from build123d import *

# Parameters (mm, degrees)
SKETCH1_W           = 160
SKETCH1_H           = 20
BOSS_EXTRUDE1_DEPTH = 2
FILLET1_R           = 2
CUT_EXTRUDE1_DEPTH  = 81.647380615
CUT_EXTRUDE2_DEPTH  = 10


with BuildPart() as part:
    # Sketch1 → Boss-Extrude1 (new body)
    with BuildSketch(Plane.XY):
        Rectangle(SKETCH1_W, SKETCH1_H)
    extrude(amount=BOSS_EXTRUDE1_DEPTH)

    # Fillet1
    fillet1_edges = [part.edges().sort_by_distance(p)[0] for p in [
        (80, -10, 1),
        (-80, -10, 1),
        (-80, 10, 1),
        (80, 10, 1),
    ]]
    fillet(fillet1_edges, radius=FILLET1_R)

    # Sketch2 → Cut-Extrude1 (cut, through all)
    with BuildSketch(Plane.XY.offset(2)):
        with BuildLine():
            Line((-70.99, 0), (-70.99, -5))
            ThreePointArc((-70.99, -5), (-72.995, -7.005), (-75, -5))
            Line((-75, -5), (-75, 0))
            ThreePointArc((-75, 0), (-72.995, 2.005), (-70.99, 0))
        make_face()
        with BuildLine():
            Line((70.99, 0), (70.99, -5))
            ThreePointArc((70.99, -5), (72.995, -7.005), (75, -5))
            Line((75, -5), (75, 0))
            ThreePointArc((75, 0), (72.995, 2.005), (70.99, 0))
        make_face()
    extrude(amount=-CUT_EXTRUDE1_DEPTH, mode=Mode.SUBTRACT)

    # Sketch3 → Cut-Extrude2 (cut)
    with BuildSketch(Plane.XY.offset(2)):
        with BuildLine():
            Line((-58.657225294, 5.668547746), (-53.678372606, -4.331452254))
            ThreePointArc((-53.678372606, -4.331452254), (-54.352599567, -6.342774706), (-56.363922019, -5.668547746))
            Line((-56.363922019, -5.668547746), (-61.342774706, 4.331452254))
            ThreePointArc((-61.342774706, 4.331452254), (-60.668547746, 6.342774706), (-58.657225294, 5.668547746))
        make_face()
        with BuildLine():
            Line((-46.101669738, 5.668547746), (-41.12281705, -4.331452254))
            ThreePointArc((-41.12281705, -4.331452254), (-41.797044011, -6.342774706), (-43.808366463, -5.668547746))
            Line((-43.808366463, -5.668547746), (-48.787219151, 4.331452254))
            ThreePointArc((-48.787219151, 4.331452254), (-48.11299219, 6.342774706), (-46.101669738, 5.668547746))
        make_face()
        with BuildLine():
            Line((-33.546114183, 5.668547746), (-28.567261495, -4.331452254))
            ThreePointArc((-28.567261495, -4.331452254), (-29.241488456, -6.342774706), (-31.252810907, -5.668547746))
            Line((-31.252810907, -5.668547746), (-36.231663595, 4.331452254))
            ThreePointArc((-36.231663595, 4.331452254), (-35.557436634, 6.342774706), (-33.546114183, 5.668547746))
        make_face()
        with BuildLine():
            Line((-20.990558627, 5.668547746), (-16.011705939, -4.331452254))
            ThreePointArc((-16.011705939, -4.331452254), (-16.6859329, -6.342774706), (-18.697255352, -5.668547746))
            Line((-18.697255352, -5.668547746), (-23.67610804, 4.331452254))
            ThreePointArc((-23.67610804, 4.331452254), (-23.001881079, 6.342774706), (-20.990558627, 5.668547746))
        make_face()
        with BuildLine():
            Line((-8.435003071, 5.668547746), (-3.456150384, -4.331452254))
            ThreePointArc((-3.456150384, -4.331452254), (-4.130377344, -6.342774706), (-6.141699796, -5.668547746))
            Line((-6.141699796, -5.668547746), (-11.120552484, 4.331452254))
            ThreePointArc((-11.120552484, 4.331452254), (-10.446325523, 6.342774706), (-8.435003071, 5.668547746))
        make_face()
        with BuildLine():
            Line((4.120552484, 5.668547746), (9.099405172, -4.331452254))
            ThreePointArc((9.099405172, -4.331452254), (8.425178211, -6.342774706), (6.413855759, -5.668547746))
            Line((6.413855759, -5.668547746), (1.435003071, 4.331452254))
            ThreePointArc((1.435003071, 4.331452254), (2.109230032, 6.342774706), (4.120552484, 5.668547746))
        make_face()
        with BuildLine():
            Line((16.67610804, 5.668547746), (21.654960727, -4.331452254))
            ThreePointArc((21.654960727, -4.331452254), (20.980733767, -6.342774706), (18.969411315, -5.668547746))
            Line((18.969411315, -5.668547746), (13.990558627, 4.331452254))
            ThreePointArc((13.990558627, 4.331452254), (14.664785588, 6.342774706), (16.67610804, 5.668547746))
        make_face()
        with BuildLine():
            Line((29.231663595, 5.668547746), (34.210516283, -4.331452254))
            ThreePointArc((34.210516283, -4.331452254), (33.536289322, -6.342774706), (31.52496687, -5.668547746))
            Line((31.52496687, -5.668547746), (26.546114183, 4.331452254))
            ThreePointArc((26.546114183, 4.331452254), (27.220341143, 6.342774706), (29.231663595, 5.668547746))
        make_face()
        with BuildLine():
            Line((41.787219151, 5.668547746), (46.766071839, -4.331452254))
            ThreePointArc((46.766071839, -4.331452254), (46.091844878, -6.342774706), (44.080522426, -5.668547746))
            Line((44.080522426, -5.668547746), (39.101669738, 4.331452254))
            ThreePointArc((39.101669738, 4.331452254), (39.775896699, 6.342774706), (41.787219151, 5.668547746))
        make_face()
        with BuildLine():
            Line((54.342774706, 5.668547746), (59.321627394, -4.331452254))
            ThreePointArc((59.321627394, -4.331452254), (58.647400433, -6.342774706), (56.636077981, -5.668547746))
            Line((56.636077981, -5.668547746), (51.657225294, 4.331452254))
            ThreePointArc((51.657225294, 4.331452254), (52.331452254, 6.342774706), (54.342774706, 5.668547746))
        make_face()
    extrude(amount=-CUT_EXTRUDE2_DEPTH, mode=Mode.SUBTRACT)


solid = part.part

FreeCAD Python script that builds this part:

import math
import FreeCAD as App
import Part
import Sketcher
from FreeCAD import Vector


def edges_at(feature, points):
    """Names of the edges that pass closest to the given points."""
    edges = feature.Shape.Edges
    near = lambda p: min(range(len(edges)), key=lambda i: edges[i].distToShape(Part.Vertex(*p))[0])
    return sorted({f"Edge{near(p) + 1}" for p in points})


def add_polygon(sketch, points):
    """Adds a closed chain of lines whose ends are joined by coincident constraints."""
    first, n = sketch.GeometryCount, len(points)
    for a, b in zip(points, points[1:] + points[:1]):
        sketch.addGeometry(Part.LineSegment(App.Vector(*a, 0), App.Vector(*b, 0)), False)
    for i in range(n):
        sketch.addConstraint(Sketcher.Constraint("Coincident", first + i, 2, first + (i + 1) % n, 1))

doc = App.newDocument("Part")
params = doc.addObject("Spreadsheet::Sheet", "Params")
for row, (alias, value) in enumerate([
    ("sketch1_width", "160 mm"),
    ("sketch1_height", "20 mm"),
    ("pad1_length", "2 mm"),
    ("fillet_radius", "2 mm"),
    ("sketch2_height", "5 mm"),
    ("sketch3_radius", "1.5 mm"),
    ("pocket2_length", "10 mm"),
], start=1):
    params.set(f"A{row}", alias)
    params.set(f"B{row}", "=" + value)
    params.setAlias(f"B{row}", alias)

body = doc.addObject("PartDesign::Body", "Body")

# Sketch on XY plane
sketch1 = body.newObject("Sketcher::SketchObject", "Sketch")
sketch1.AttachmentSupport = (doc.getObject("XY_Plane"), [""])
sketch1.MapMode = "FlatFace"
add_polygon(sketch1, [(-80, 10), (-80, -10), (80, -10), (80, 10)])  # lines 0-3
sketch1.addConstraint(Sketcher.Constraint("Vertical", 0))
sketch1.addConstraint(Sketcher.Constraint("Horizontal", 1))
sketch1.addConstraint(Sketcher.Constraint("Vertical", 2))
sketch1.addConstraint(Sketcher.Constraint("Horizontal", 3))
sketch1.addConstraint(Sketcher.Constraint("Symmetric", 0, 2, 2, 2, -1, 1))
sketch1.addConstraint(Sketcher.Constraint("DistanceX", 1, 1, 1, 2, 160.0))
sketch1.addConstraint(Sketcher.Constraint("DistanceY", 0, 2, 0, 1, 20.0))
sketch1.setExpression("Constraints[9]", "Params.sketch1_width")
sketch1.setExpression("Constraints[10]", "Params.sketch1_height")
pad1 = body.newObject("PartDesign::Pad", "Pad")
pad1.Profile = sketch1
pad1.setExpression("Length", "Params.pad1_length")
doc.recompute()

fillet = body.newObject("PartDesign::Fillet", "Fillet")
fillet.Base = (pad1, edges_at(pad1, [
    (80, -10, 1),
    (-80, -10, 1),
    (-80, 10, 1),
    (80, 10, 1),
]))
fillet.setExpression("Radius", "Params.fillet_radius")

# Sketch on XY plane
sketch2 = body.newObject("Sketcher::SketchObject", "Sketch001")
sketch2.AttachmentSupport = (doc.getObject("XY_Plane"), [""])
sketch2.MapMode = "FlatFace"
sketch2.AttachmentOffset = App.Placement(Vector(0, 0, 2), App.Rotation())
sketch2.addGeometry(Part.LineSegment(Vector(-71, -5, 0), Vector(-71, 0, 0)), False)
sketch2.addGeometry(Part.ArcOfCircle(Part.Circle(Vector(-73, 0, 0), Vector(0, 0, 1), 2), math.radians(0), math.radians(180)), False)
sketch2.addGeometry(Part.LineSegment(Vector(-75, 0, 0), Vector(-75, -5, 0)), False)
sketch2.addGeometry(Part.ArcOfCircle(Part.Circle(Vector(-73, -5, 0), Vector(0, 0, 1), 2), math.radians(180), math.radians(360)), False)
sketch2.addGeometry(Part.LineSegment(Vector(71, 0, 0), Vector(71, -5, 0)), False)
sketch2.addGeometry(Part.ArcOfCircle(Part.Circle(Vector(73, -5, 0), Vector(0, 0, 1), 2), math.radians(180), math.radians(360)), False)
sketch2.addGeometry(Part.LineSegment(Vector(75, -5, 0), Vector(75, 0, 0)), False)
sketch2.addGeometry(Part.ArcOfCircle(Part.Circle(Vector(73, 0, 0), Vector(0, 0, 1), 2), math.radians(0), math.radians(180)), False)
sketch2.addConstraint(Sketcher.Constraint("Tangent", 0, 2, 1, 1))
sketch2.addConstraint(Sketcher.Constraint("Tangent", 1, 2, 2, 1))
sketch2.addConstraint(Sketcher.Constraint("Tangent", 2, 2, 3, 1))
sketch2.addConstraint(Sketcher.Constraint("Tangent", 3, 2, 0, 1))
sketch2.addConstraint(Sketcher.Constraint("Tangent", 4, 2, 5, 1))
sketch2.addConstraint(Sketcher.Constraint("Tangent", 5, 2, 6, 1))
sketch2.addConstraint(Sketcher.Constraint("Tangent", 6, 2, 7, 1))
sketch2.addConstraint(Sketcher.Constraint("Tangent", 7, 2, 4, 1))
sketch2.addConstraint(Sketcher.Constraint("Vertical", 0))
sketch2.addConstraint(Sketcher.Constraint("Vertical", 2))
sketch2.addConstraint(Sketcher.Constraint("Vertical", 4))
sketch2.addConstraint(Sketcher.Constraint("Vertical", 6))
sketch2.addConstraint(Sketcher.Constraint("Equal", 3, 5))
sketch2.addConstraint(Sketcher.Constraint("Symmetric", 1, 3, 7, 3, -1, 1))
sketch2.addConstraint(Sketcher.Constraint("PointOnObject", 1, 3, -1))
sketch2.addConstraint(Sketcher.Constraint("Horizontal", 3, 3, 5, 3))
sketch2.addConstraint(Sketcher.Constraint("DistanceY", 0, 1, 0, 2, 5.0))
sketch2.addConstraint(Sketcher.Constraint("DistanceX", 1, 2, -1, 1, 75.0))
sketch2.addConstraint(Sketcher.Constraint("Radius", 1, 2.005))
sketch2.setExpression("Constraints[16]", "Params.sketch2_height")
pocket1 = body.newObject("PartDesign::Pocket", "Pocket")
pocket1.Profile = sketch2
pocket1.Type = "ThroughAll"

# Sketch on XY plane
sketch3 = body.newObject("Sketcher::SketchObject", "Sketch002")
sketch3.AttachmentSupport = (doc.getObject("XY_Plane"), [""])
sketch3.MapMode = "FlatFace"
sketch3.AttachmentOffset = App.Placement(Vector(0, 0, 2), App.Rotation())
sketch3.addGeometry(Part.LineSegment(Vector(-53.7, -4.3, 0), Vector(-58.7, 5.7, 0)), False)
sketch3.addGeometry(Part.ArcOfCircle(Part.Circle(Vector(-60, 5, 0), Vector(0, 0, 1), 1.5), math.radians(26), math.radians(206)), False)
sketch3.addGeometry(Part.LineSegment(Vector(-61.3, 4.3, 0), Vector(-56.4, -5.7, 0)), False)
sketch3.addGeometry(Part.ArcOfCircle(Part.Circle(Vector(-55, -5, 0), Vector(0, 0, 1), 1.5), math.radians(-154), math.radians(26)), False)
sketch3.addGeometry(Part.LineSegment(Vector(-41.1, -4.3, 0), Vector(-46.1, 5.7, 0)), False)
sketch3.addGeometry(Part.ArcOfCircle(Part.Circle(Vector(-47.4, 5, 0), Vector(0, 0, 1), 1.5), math.radians(26), math.radians(206)), False)
sketch3.addGeometry(Part.LineSegment(Vector(-48.8, 4.3, 0), Vector(-43.8, -5.7, 0)), False)
sketch3.addGeometry(Part.ArcOfCircle(Part.Circle(Vector(-42.5, -5, 0), Vector(0, 0, 1), 1.5), math.radians(-154), math.radians(26)), False)
sketch3.addGeometry(Part.LineSegment(Vector(-28.6, -4.3, 0), Vector(-33.5, 5.7, 0)), False)
sketch3.addGeometry(Part.ArcOfCircle(Part.Circle(Vector(-34.9, 5, 0), Vector(0, 0, 1), 1.5), math.radians(26), math.radians(206)), False)
sketch3.addGeometry(Part.LineSegment(Vector(-36.2, 4.3, 0), Vector(-31.3, -5.7, 0)), False)
sketch3.addGeometry(Part.ArcOfCircle(Part.Circle(Vector(-29.9, -5, 0), Vector(0, 0, 1), 1.5), math.radians(-154), math.radians(26)), False)
sketch3.addGeometry(Part.LineSegment(Vector(-16, -4.3, 0), Vector(-21, 5.7, 0)), False)
sketch3.addGeometry(Part.ArcOfCircle(Part.Circle(Vector(-22.3, 5, 0), Vector(0, 0, 1), 1.5), math.radians(26), math.radians(206)), False)
sketch3.addGeometry(Part.LineSegment(Vector(-23.7, 4.3, 0), Vector(-18.7, -5.7, 0)), False)
sketch3.addGeometry(Part.ArcOfCircle(Part.Circle(Vector(-17.4, -5, 0), Vector(0, 0, 1), 1.5), math.radians(-154), math.radians(26)), False)
sketch3.addGeometry(Part.LineSegment(Vector(-3.5, -4.3, 0), Vector(-8.4, 5.7, 0)), False)
sketch3.addGeometry(Part.ArcOfCircle(Part.Circle(Vector(-9.8, 5, 0), Vector(0, 0, 1), 1.5), math.radians(26), math.radians(206)), False)
sketch3.addGeometry(Part.LineSegment(Vector(-11.1, 4.3, 0), Vector(-6.1, -5.7, 0)), False)
sketch3.addGeometry(Part.ArcOfCircle(Part.Circle(Vector(-4.8, -5, 0), Vector(0, 0, 1), 1.5), math.radians(-154), math.radians(26)), False)
sketch3.addGeometry(Part.LineSegment(Vector(9.1, -4.3, 0), Vector(4.1, 5.7, 0)), False)
sketch3.addGeometry(Part.ArcOfCircle(Part.Circle(Vector(2.8, 5, 0), Vector(0, 0, 1), 1.5), math.radians(26), math.radians(206)), False)
sketch3.addGeometry(Part.LineSegment(Vector(1.4, 4.3, 0), Vector(6.4, -5.7, 0)), False)
sketch3.addGeometry(Part.ArcOfCircle(Part.Circle(Vector(7.8, -5, 0), Vector(0, 0, 1), 1.5), math.radians(-154), math.radians(26)), False)
sketch3.addGeometry(Part.LineSegment(Vector(21.7, -4.3, 0), Vector(16.7, 5.7, 0)), False)
sketch3.addGeometry(Part.ArcOfCircle(Part.Circle(Vector(15.3, 5, 0), Vector(0, 0, 1), 1.5), math.radians(26), math.radians(206)), False)
sketch3.addGeometry(Part.LineSegment(Vector(14, 4.3, 0), Vector(19, -5.7, 0)), False)
sketch3.addGeometry(Part.ArcOfCircle(Part.Circle(Vector(20.3, -5, 0), Vector(0, 0, 1), 1.5), math.radians(-154), math.radians(26)), False)
sketch3.addGeometry(Part.LineSegment(Vector(34.2, -4.3, 0), Vector(29.2, 5.7, 0)), False)
sketch3.addGeometry(Part.ArcOfCircle(Part.Circle(Vector(27.9, 5, 0), Vector(0, 0, 1), 1.5), math.radians(26), math.radians(206)), False)
sketch3.addGeometry(Part.LineSegment(Vector(26.5, 4.3, 0), Vector(31.5, -5.7, 0)), False)
sketch3.addGeometry(Part.ArcOfCircle(Part.Circle(Vector(32.9, -5, 0), Vector(0, 0, 1), 1.5), math.radians(-154), math.radians(26)), False)
sketch3.addGeometry(Part.LineSegment(Vector(46.8, -4.3, 0), Vector(41.8, 5.7, 0)), False)
sketch3.addGeometry(Part.ArcOfCircle(Part.Circle(Vector(40.4, 5, 0), Vector(0, 0, 1), 1.5), math.radians(26), math.radians(206)), False)
sketch3.addGeometry(Part.LineSegment(Vector(39.1, 4.3, 0), Vector(44.1, -5.7, 0)), False)
sketch3.addGeometry(Part.ArcOfCircle(Part.Circle(Vector(45.4, -5, 0), Vector(0, 0, 1), 1.5), math.radians(-154), math.radians(26)), False)
sketch3.addGeometry(Part.LineSegment(Vector(59.3, -4.3, 0), Vector(54.3, 5.7, 0)), False)
sketch3.addGeometry(Part.ArcOfCircle(Part.Circle(Vector(53, 5, 0), Vector(0, 0, 1), 1.5), math.radians(26), math.radians(206)), False)
sketch3.addGeometry(Part.LineSegment(Vector(51.7, 4.3, 0), Vector(56.6, -5.7, 0)), False)
sketch3.addGeometry(Part.ArcOfCircle(Part.Circle(Vector(58, -5, 0), Vector(0, 0, 1), 1.5), math.radians(-154), math.radians(26)), False)
sketch3.addConstraint(Sketcher.Constraint("Tangent", 0, 2, 1, 1))
sketch3.addConstraint(Sketcher.Constraint("Tangent", 1, 2, 2, 1))
sketch3.addConstraint(Sketcher.Constraint("Tangent", 2, 2, 3, 1))
sketch3.addConstraint(Sketcher.Constraint("Tangent", 3, 2, 0, 1))
sketch3.addConstraint(Sketcher.Constraint("Tangent", 4, 2, 5, 1))
sketch3.addConstraint(Sketcher.Constraint("Tangent", 5, 2, 6, 1))
sketch3.addConstraint(Sketcher.Constraint("Tangent", 6, 2, 7, 1))
sketch3.addConstraint(Sketcher.Constraint("Tangent", 7, 2, 4, 1))
sketch3.addConstraint(Sketcher.Constraint("Tangent", 8, 2, 9, 1))
sketch3.addConstraint(Sketcher.Constraint("Tangent", 9, 2, 10, 1))
sketch3.addConstraint(Sketcher.Constraint("Tangent", 10, 2, 11, 1))
sketch3.addConstraint(Sketcher.Constraint("Tangent", 11, 2, 8, 1))
sketch3.addConstraint(Sketcher.Constraint("Tangent", 12, 2, 13, 1))
sketch3.addConstraint(Sketcher.Constraint("Tangent", 13, 2, 14, 1))
sketch3.addConstraint(Sketcher.Constraint("Tangent", 14, 2, 15, 1))
sketch3.addConstraint(Sketcher.Constraint("Tangent", 15, 2, 12, 1))
sketch3.addConstraint(Sketcher.Constraint("Tangent", 16, 2, 17, 1))
sketch3.addConstraint(Sketcher.Constraint("Tangent", 17, 2, 18, 1))
sketch3.addConstraint(Sketcher.Constraint("Tangent", 18, 2, 19, 1))
sketch3.addConstraint(Sketcher.Constraint("Tangent", 19, 2, 16, 1))
sketch3.addConstraint(Sketcher.Constraint("Tangent", 20, 2, 21, 1))
sketch3.addConstraint(Sketcher.Constraint("Tangent", 21, 2, 22, 1))
sketch3.addConstraint(Sketcher.Constraint("Tangent", 22, 2, 23, 1))
sketch3.addConstraint(Sketcher.Constraint("Tangent", 23, 2, 20, 1))
sketch3.addConstraint(Sketcher.Constraint("Tangent", 24, 2, 25, 1))
sketch3.addConstraint(Sketcher.Constraint("Tangent", 25, 2, 26, 1))
sketch3.addConstraint(Sketcher.Constraint("Tangent", 26, 2, 27, 1))
sketch3.addConstraint(Sketcher.Constraint("Tangent", 27, 2, 24, 1))
sketch3.addConstraint(Sketcher.Constraint("Tangent", 28, 2, 29, 1))
sketch3.addConstraint(Sketcher.Constraint("Tangent", 29, 2, 30, 1))
sketch3.addConstraint(Sketcher.Constraint("Tangent", 30, 2, 31, 1))
sketch3.addConstraint(Sketcher.Constraint("Tangent", 31, 2, 28, 1))
sketch3.addConstraint(Sketcher.Constraint("Tangent", 32, 2, 33, 1))
sketch3.addConstraint(Sketcher.Constraint("Tangent", 33, 2, 34, 1))
sketch3.addConstraint(Sketcher.Constraint("Tangent", 34, 2, 35, 1))
sketch3.addConstraint(Sketcher.Constraint("Tangent", 35, 2, 32, 1))
sketch3.addConstraint(Sketcher.Constraint("Tangent", 36, 2, 37, 1))
sketch3.addConstraint(Sketcher.Constraint("Tangent", 37, 2, 38, 1))
sketch3.addConstraint(Sketcher.Constraint("Tangent", 38, 2, 39, 1))
sketch3.addConstraint(Sketcher.Constraint("Tangent", 39, 2, 36, 1))
sketch3.addConstraint(Sketcher.Constraint("Equal", 1, 3))
sketch3.addConstraint(Sketcher.Constraint("Equal", 3, 5))
sketch3.addConstraint(Sketcher.Constraint("Equal", 5, 7))
sketch3.addConstraint(Sketcher.Constraint("Equal", 7, 9))
sketch3.addConstraint(Sketcher.Constraint("Equal", 9, 11))
sketch3.addConstraint(Sketcher.Constraint("Equal", 11, 13))
sketch3.addConstraint(Sketcher.Constraint("Equal", 13, 15))
sketch3.addConstraint(Sketcher.Constraint("Equal", 15, 17))
sketch3.addConstraint(Sketcher.Constraint("Equal", 17, 19))
sketch3.addConstraint(Sketcher.Constraint("Equal", 19, 21))
sketch3.addConstraint(Sketcher.Constraint("Equal", 21, 23))
sketch3.addConstraint(Sketcher.Constraint("Equal", 23, 25))
sketch3.addConstraint(Sketcher.Constraint("Equal", 25, 27))
sketch3.addConstraint(Sketcher.Constraint("Equal", 27, 29))
sketch3.addConstraint(Sketcher.Constraint("Equal", 29, 31))
sketch3.addConstraint(Sketcher.Constraint("Equal", 31, 33))
sketch3.addConstraint(Sketcher.Constraint("Equal", 33, 35))
sketch3.addConstraint(Sketcher.Constraint("Equal", 35, 37))
sketch3.addConstraint(Sketcher.Constraint("Equal", 37, 39))
sketch3.addConstraint(Sketcher.Constraint("Parallel", 2, 4))
sketch3.addConstraint(Sketcher.Constraint("Parallel", 6, 8))
sketch3.addConstraint(Sketcher.Constraint("Parallel", 10, 12))
sketch3.addConstraint(Sketcher.Constraint("Parallel", 14, 16))
sketch3.addConstraint(Sketcher.Constraint("Parallel", 18, 20))
sketch3.addConstraint(Sketcher.Constraint("Parallel", 22, 24))
sketch3.addConstraint(Sketcher.Constraint("Parallel", 26, 28))
sketch3.addConstraint(Sketcher.Constraint("Parallel", 30, 32))
sketch3.addConstraint(Sketcher.Constraint("Parallel", 34, 36))
sketch3.addConstraint(Sketcher.Constraint("Horizontal", 1, 3, 5, 3))
sketch3.addConstraint(Sketcher.Constraint("Horizontal", 3, 3, 7, 3))
sketch3.addConstraint(Sketcher.Constraint("Horizontal", 5, 3, 9, 3))
sketch3.addConstraint(Sketcher.Constraint("Horizontal", 7, 3, 11, 3))
sketch3.addConstraint(Sketcher.Constraint("Horizontal", 9, 3, 13, 3))
sketch3.addConstraint(Sketcher.Constraint("Horizontal", 11, 3, 15, 3))
sketch3.addConstraint(Sketcher.Constraint("Horizontal", 13, 3, 17, 3))
sketch3.addConstraint(Sketcher.Constraint("Horizontal", 15, 3, 19, 3))
sketch3.addConstraint(Sketcher.Constraint("Horizontal", 17, 3, 21, 3))
sketch3.addConstraint(Sketcher.Constraint("Horizontal", 19, 3, 23, 3))
sketch3.addConstraint(Sketcher.Constraint("Horizontal", 21, 3, 25, 3))
sketch3.addConstraint(Sketcher.Constraint("Horizontal", 23, 3, 27, 3))
sketch3.addConstraint(Sketcher.Constraint("Horizontal", 25, 3, 29, 3))
sketch3.addConstraint(Sketcher.Constraint("Horizontal", 27, 3, 31, 3))
sketch3.addConstraint(Sketcher.Constraint("Horizontal", 29, 3, 33, 3))
sketch3.addConstraint(Sketcher.Constraint("Horizontal", 31, 3, 35, 3))
sketch3.addConstraint(Sketcher.Constraint("Horizontal", 33, 3, 37, 3))
sketch3.addConstraint(Sketcher.Constraint("Horizontal", 35, 3, 39, 3))
sketch3.addConstraint(Sketcher.Constraint("Radius", 1, 1.5))
sketch3.addConstraint(Sketcher.Constraint("DistanceX", 1, 3, -1, 1, 60.0))
sketch3.addConstraint(Sketcher.Constraint("DistanceY", -1, 1, 1, 3, 5.0))
sketch3.addConstraint(Sketcher.Constraint("DistanceY", 3, 3, -1, 1, 5.0))
sketch3.addConstraint(Sketcher.Constraint("DistanceX", -1, 1, 37, 3, 53.0))
sketch3.addConstraint(Sketcher.Constraint("Distance", 0, 11.170899))
sketch3.addConstraint(Sketcher.Constraint("DistanceX", 18, 2, -1, 1, 6.1417))
sketch3.addConstraint(Sketcher.Constraint("DistanceX", 7, 3, -1, 1, 42.465592))
sketch3.addConstraint(Sketcher.Constraint("DistanceX", 9, 3, -1, 1, 34.888889))
sketch3.addConstraint(Sketcher.Constraint("DistanceX", 15, 3, -1, 1, 17.354481))
sketch3.addConstraint(Sketcher.Constraint("DistanceX", -1, 1, 23, 3, 7.75663))
sketch3.addConstraint(Sketcher.Constraint("DistanceX", -1, 1, 29, 3, 27.888889))
sketch3.addConstraint(Sketcher.Constraint("DistanceX", -1, 1, 24, 2, 16.676108))
sketch3.addConstraint(Sketcher.Constraint("DistanceX", -1, 1, 32, 2, 41.787219))
sketch3.setExpression("Constraints[86]", "Params.sketch3_radius")
pocket2 = body.newObject("PartDesign::Pocket", "Pocket001")
pocket2.Profile = sketch3
pocket2.setExpression("Length", "Params.pocket2_length")

doc.recompute()
